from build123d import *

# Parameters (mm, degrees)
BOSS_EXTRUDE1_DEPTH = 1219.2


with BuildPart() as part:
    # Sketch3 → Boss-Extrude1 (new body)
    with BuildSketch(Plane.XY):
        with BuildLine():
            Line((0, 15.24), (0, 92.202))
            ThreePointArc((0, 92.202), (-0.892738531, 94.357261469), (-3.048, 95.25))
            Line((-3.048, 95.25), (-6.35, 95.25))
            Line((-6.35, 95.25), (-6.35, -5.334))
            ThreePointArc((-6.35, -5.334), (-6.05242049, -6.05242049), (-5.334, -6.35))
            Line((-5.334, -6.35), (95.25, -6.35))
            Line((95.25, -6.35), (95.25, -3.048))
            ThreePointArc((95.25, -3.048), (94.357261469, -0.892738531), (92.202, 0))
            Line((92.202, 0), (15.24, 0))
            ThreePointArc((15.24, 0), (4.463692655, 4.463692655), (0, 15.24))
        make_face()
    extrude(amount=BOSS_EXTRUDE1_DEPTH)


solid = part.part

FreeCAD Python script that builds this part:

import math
import FreeCAD as App
import Part
import Sketcher

V = App.Vector
Q = App.Units.Quantity

doc = App.newDocument("Part")
body = doc.addObject("PartDesign::Body", "Body")

# Sketch on XY plane
sketch1 = body.newObject("Sketcher::SketchObject", "Sketch")
sketch1.AttachmentSupport = (doc.getObject("XY_Plane"), [""])
sketch1.MapMode = "FlatFace"
sketch1.addGeometry([
    Part.LineSegment(V(0, 15.2, 0), V(0, 92.2, 0)),  # 0
    Part.ArcOfCircle(Part.Circle(V(-3, 92.2, 0), V(0, 0, 1), 3), math.radians(0), math.radians(90)),  # 1
    Part.LineSegment(V(-3, 95.2, 0), V(-6.3, 95.2, 0)),  # 2
    Part.LineSegment(V(-6.3, 95.2, 0), V(-6.3, -5.3, 0)),  # 3
    Part.ArcOfCircle(Part.Circle(V(-5.3, -5.3, 0), V(0, 0, 1), 1), math.radians(180), math.radians(270)),  # 4
    Part.LineSegment(V(-5.3, -6.3, 0), V(95.2, -6.3, 0)),  # 5
    Part.LineSegment(V(95.2, -6.3, 0), V(95.2, -3, 0)),  # 6
    Part.ArcOfCircle(Part.Circle(V(92.2, -3, 0), V(0, 0, 1), 3), math.radians(0), math.radians(90)),  # 7
    Part.LineSegment(V(92.2, 0, 0), V(15.2, 0, 0)),  # 8
    Part.ArcOfCircle(Part.Circle(V(15.2, 15.2, 0), V(0, 0, 1), 15.2), math.radians(-180), math.radians(-90)),  # 9
], False)
sketch1.addConstraint([
    Sketcher.Constraint("Tangent", 0, 2, 1, 1),
    Sketcher.Constraint("Tangent", 1, 2, 2, 1),
    Sketcher.Constraint("Coincident", 2, 2, 3, 1),
    Sketcher.Constraint("Tangent", 3, 2, 4, 1),
    Sketcher.Constraint("Tangent", 4, 2, 5, 1),
    Sketcher.Constraint("Coincident", 5, 2, 6, 1),
    Sketcher.Constraint("Tangent", 6, 2, 7, 1),
    Sketcher.Constraint("Tangent", 7, 2, 8, 1),
    Sketcher.Constraint("Tangent", 8, 2, 9, 2),
    Sketcher.Constraint("Tangent", 9, 1, 0, 1),
    Sketcher.Constraint("Vertical", 0),
    Sketcher.Constraint("Horizontal", 2),
    Sketcher.Constraint("Vertical", 3),
    Sketcher.Constraint("Horizontal", 5),
    Sketcher.Constraint("Vertical", 6),
    Sketcher.Constraint("Horizontal", 8),
    Sketcher.Constraint("Equal", 1, 7),
    Sketcher.Constraint("PointOnObject", 0, 2, -2),
    Sketcher.Constraint("PointOnObject", 7, 2, -1),
    Sketcher.Constraint("Equal", 8, 0),
    Sketcher.Constraint("Equal", 5, 3),
    Sketcher.Constraint("Radius", 9, Q("0.6 in")),
    Sketcher.Constraint("Radius", 1, Q("0.12 in")),
    Sketcher.Constraint("Radius", 4, Q("0.04 in")),
    Sketcher.Constraint("DistanceX", 3, 2, 5, 2, Q("4 in")),
    Sketcher.Constraint("DistanceX", 2, 2, 2, 1, Q("0.13 in")),
])
pad1 = body.newObject("PartDesign::Pad", "Pad")
pad1.Profile = sketch1
pad1.Length = Q("48 in")

doc.recompute()
